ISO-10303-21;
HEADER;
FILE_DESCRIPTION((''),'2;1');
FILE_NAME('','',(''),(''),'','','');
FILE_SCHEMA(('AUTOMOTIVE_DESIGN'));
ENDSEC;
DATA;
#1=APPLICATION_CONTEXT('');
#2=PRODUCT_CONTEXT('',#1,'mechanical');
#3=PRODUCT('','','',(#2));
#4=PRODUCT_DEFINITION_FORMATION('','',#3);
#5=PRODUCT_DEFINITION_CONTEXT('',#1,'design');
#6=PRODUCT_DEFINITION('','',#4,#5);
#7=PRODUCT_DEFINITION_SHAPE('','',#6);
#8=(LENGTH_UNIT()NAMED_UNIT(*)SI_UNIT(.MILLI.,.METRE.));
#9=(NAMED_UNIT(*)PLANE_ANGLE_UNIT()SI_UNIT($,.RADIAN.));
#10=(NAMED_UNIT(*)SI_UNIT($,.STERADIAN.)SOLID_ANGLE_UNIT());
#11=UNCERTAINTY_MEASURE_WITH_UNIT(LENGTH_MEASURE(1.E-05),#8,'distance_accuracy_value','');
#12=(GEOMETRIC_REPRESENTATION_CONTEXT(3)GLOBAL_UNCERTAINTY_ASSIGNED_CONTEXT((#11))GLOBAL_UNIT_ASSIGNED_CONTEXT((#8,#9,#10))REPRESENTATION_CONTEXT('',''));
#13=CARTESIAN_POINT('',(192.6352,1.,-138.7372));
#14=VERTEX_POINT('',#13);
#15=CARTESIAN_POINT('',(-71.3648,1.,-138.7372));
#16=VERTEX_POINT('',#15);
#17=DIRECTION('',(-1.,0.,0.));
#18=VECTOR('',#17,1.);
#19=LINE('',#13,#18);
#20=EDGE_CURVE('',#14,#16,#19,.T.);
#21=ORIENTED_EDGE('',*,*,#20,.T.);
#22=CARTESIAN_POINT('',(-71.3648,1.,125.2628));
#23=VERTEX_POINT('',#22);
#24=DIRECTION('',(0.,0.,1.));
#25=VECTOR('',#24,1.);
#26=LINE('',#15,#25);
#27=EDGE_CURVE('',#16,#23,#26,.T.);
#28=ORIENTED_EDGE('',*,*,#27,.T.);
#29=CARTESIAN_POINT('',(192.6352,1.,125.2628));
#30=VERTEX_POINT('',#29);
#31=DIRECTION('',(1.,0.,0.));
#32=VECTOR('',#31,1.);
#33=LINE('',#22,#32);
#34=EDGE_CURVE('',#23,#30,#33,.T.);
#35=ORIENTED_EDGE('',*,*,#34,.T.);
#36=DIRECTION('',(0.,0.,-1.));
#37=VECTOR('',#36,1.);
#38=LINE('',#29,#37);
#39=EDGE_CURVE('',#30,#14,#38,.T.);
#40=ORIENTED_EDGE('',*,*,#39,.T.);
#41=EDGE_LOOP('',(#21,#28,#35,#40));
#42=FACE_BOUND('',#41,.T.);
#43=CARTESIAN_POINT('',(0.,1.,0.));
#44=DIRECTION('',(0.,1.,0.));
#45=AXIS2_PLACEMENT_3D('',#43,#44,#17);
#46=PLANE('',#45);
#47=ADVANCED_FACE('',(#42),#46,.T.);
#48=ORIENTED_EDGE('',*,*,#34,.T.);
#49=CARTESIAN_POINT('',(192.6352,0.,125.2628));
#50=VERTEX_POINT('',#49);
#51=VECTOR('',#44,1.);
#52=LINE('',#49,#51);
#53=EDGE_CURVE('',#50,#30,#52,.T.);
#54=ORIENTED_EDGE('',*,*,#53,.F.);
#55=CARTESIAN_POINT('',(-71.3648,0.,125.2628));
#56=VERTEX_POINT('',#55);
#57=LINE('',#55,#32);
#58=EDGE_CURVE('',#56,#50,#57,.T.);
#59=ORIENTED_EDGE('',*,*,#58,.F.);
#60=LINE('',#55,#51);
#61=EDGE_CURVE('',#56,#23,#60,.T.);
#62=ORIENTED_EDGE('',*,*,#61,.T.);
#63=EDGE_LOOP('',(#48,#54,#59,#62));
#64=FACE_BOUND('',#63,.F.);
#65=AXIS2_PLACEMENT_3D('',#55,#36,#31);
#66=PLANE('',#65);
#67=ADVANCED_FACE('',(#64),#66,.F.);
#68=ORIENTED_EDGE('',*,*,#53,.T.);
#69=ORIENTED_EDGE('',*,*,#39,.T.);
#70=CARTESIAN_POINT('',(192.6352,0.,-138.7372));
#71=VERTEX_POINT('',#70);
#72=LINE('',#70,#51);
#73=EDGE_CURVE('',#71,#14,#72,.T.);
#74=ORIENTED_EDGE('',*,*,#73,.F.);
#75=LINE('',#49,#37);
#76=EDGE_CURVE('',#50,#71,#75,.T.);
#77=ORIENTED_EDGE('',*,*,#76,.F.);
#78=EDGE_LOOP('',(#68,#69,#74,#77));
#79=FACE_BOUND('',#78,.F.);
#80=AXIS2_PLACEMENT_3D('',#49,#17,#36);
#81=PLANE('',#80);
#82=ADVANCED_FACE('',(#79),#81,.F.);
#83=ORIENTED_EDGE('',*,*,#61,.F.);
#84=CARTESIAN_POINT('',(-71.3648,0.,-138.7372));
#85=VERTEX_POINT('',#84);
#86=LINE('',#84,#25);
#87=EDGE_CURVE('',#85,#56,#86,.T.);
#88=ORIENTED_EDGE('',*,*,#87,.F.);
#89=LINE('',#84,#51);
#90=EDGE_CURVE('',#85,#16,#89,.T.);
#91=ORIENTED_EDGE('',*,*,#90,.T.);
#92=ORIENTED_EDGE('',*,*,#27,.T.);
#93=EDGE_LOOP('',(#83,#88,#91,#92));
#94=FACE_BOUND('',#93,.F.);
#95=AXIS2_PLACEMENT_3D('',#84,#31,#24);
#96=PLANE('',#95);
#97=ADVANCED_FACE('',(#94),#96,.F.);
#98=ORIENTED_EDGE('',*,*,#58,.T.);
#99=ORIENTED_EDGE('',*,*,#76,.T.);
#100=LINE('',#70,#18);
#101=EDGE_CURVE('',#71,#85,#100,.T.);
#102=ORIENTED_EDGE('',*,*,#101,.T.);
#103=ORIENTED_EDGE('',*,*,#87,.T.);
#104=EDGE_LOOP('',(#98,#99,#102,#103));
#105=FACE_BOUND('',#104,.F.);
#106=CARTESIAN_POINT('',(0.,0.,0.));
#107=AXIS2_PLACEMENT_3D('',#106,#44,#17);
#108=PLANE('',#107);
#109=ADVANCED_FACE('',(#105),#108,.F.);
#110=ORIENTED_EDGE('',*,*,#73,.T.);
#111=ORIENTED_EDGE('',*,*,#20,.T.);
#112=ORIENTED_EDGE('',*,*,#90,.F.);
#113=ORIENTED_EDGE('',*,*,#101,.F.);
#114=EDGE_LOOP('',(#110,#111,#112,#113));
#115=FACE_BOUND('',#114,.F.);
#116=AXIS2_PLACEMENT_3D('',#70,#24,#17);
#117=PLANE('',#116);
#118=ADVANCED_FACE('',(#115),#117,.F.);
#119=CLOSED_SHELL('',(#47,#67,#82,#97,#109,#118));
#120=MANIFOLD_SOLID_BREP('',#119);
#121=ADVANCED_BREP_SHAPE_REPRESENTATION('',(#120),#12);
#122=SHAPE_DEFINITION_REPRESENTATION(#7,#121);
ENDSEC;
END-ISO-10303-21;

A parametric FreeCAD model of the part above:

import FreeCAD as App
import Part
import Sketcher

doc = App.newDocument("Part")
params = doc.addObject("Spreadsheet::Sheet", "Params")
for row, (alias, value) in enumerate([
    ("sketch1_width", "264 mm"),
    ("pad1_length", "1 mm"),
], start=1):
    params.set(f"A{row}", alias)
    params.set(f"B{row}", "=" + value)
    params.setAlias(f"B{row}", alias)

body = doc.addObject("PartDesign::Body", "Body")

# Sketch on XZ plane
sketch1 = doc.addObject("Sketcher::SketchObject", "Sketch")
body.addObject(sketch1)
sketch1.AttachmentSupport = (doc.XZ_Plane, [""])
sketch1.MapMode = "FlatFace"
sketch1.addGeometry(Part.LineSegment(App.Vector(-71, -139, 0), App.Vector(-71, 125, 0)), False)
sketch1.addGeometry(Part.LineSegment(App.Vector(-71, 125, 0), App.Vector(193, 125, 0)), False)
sketch1.addGeometry(Part.LineSegment(App.Vector(193, 125, 0), App.Vector(193, -139, 0)), False)
sketch1.addGeometry(Part.LineSegment(App.Vector(193, -139, 0), App.Vector(-71, -139, 0)), False)
sketch1.addConstraint(Sketcher.Constraint("Coincident", 0, 2, 1, 1))
sketch1.addConstraint(Sketcher.Constraint("Coincident", 1, 2, 2, 1))
sketch1.addConstraint(Sketcher.Constraint("Coincident", 2, 2, 3, 1))
sketch1.addConstraint(Sketcher.Constraint("Coincident", 3, 2, 0, 1))
sketch1.addConstraint(Sketcher.Constraint("Vertical", 0))
sketch1.addConstraint(Sketcher.Constraint("Horizontal", 1))
sketch1.addConstraint(Sketcher.Constraint("Vertical", 2))
sketch1.addConstraint(Sketcher.Constraint("Horizontal", 3))
sketch1.addConstraint(Sketcher.Constraint("Equal", 3, 0))
sketch1.addConstraint(Sketcher.Constraint("DistanceX", 1, 1, 1, 2, 264.0))
sketch1.addConstraint(Sketcher.Constraint("DistanceX", 0, 2, -1, 1, 71.3648))
sketch1.addConstraint(Sketcher.Constraint("DistanceY", -1, 1, 0, 2, 125.2628))
sketch1.setExpression("Constraints[9]", "Params.sketch1_width")
pad1 = doc.addObject("PartDesign::Pad", "Pad")
body.addObject(pad1)
pad1.Profile = sketch1
pad1.setExpression("Length", "Params.pad1_length")
pad1.Reversed = True

doc.recompute()
